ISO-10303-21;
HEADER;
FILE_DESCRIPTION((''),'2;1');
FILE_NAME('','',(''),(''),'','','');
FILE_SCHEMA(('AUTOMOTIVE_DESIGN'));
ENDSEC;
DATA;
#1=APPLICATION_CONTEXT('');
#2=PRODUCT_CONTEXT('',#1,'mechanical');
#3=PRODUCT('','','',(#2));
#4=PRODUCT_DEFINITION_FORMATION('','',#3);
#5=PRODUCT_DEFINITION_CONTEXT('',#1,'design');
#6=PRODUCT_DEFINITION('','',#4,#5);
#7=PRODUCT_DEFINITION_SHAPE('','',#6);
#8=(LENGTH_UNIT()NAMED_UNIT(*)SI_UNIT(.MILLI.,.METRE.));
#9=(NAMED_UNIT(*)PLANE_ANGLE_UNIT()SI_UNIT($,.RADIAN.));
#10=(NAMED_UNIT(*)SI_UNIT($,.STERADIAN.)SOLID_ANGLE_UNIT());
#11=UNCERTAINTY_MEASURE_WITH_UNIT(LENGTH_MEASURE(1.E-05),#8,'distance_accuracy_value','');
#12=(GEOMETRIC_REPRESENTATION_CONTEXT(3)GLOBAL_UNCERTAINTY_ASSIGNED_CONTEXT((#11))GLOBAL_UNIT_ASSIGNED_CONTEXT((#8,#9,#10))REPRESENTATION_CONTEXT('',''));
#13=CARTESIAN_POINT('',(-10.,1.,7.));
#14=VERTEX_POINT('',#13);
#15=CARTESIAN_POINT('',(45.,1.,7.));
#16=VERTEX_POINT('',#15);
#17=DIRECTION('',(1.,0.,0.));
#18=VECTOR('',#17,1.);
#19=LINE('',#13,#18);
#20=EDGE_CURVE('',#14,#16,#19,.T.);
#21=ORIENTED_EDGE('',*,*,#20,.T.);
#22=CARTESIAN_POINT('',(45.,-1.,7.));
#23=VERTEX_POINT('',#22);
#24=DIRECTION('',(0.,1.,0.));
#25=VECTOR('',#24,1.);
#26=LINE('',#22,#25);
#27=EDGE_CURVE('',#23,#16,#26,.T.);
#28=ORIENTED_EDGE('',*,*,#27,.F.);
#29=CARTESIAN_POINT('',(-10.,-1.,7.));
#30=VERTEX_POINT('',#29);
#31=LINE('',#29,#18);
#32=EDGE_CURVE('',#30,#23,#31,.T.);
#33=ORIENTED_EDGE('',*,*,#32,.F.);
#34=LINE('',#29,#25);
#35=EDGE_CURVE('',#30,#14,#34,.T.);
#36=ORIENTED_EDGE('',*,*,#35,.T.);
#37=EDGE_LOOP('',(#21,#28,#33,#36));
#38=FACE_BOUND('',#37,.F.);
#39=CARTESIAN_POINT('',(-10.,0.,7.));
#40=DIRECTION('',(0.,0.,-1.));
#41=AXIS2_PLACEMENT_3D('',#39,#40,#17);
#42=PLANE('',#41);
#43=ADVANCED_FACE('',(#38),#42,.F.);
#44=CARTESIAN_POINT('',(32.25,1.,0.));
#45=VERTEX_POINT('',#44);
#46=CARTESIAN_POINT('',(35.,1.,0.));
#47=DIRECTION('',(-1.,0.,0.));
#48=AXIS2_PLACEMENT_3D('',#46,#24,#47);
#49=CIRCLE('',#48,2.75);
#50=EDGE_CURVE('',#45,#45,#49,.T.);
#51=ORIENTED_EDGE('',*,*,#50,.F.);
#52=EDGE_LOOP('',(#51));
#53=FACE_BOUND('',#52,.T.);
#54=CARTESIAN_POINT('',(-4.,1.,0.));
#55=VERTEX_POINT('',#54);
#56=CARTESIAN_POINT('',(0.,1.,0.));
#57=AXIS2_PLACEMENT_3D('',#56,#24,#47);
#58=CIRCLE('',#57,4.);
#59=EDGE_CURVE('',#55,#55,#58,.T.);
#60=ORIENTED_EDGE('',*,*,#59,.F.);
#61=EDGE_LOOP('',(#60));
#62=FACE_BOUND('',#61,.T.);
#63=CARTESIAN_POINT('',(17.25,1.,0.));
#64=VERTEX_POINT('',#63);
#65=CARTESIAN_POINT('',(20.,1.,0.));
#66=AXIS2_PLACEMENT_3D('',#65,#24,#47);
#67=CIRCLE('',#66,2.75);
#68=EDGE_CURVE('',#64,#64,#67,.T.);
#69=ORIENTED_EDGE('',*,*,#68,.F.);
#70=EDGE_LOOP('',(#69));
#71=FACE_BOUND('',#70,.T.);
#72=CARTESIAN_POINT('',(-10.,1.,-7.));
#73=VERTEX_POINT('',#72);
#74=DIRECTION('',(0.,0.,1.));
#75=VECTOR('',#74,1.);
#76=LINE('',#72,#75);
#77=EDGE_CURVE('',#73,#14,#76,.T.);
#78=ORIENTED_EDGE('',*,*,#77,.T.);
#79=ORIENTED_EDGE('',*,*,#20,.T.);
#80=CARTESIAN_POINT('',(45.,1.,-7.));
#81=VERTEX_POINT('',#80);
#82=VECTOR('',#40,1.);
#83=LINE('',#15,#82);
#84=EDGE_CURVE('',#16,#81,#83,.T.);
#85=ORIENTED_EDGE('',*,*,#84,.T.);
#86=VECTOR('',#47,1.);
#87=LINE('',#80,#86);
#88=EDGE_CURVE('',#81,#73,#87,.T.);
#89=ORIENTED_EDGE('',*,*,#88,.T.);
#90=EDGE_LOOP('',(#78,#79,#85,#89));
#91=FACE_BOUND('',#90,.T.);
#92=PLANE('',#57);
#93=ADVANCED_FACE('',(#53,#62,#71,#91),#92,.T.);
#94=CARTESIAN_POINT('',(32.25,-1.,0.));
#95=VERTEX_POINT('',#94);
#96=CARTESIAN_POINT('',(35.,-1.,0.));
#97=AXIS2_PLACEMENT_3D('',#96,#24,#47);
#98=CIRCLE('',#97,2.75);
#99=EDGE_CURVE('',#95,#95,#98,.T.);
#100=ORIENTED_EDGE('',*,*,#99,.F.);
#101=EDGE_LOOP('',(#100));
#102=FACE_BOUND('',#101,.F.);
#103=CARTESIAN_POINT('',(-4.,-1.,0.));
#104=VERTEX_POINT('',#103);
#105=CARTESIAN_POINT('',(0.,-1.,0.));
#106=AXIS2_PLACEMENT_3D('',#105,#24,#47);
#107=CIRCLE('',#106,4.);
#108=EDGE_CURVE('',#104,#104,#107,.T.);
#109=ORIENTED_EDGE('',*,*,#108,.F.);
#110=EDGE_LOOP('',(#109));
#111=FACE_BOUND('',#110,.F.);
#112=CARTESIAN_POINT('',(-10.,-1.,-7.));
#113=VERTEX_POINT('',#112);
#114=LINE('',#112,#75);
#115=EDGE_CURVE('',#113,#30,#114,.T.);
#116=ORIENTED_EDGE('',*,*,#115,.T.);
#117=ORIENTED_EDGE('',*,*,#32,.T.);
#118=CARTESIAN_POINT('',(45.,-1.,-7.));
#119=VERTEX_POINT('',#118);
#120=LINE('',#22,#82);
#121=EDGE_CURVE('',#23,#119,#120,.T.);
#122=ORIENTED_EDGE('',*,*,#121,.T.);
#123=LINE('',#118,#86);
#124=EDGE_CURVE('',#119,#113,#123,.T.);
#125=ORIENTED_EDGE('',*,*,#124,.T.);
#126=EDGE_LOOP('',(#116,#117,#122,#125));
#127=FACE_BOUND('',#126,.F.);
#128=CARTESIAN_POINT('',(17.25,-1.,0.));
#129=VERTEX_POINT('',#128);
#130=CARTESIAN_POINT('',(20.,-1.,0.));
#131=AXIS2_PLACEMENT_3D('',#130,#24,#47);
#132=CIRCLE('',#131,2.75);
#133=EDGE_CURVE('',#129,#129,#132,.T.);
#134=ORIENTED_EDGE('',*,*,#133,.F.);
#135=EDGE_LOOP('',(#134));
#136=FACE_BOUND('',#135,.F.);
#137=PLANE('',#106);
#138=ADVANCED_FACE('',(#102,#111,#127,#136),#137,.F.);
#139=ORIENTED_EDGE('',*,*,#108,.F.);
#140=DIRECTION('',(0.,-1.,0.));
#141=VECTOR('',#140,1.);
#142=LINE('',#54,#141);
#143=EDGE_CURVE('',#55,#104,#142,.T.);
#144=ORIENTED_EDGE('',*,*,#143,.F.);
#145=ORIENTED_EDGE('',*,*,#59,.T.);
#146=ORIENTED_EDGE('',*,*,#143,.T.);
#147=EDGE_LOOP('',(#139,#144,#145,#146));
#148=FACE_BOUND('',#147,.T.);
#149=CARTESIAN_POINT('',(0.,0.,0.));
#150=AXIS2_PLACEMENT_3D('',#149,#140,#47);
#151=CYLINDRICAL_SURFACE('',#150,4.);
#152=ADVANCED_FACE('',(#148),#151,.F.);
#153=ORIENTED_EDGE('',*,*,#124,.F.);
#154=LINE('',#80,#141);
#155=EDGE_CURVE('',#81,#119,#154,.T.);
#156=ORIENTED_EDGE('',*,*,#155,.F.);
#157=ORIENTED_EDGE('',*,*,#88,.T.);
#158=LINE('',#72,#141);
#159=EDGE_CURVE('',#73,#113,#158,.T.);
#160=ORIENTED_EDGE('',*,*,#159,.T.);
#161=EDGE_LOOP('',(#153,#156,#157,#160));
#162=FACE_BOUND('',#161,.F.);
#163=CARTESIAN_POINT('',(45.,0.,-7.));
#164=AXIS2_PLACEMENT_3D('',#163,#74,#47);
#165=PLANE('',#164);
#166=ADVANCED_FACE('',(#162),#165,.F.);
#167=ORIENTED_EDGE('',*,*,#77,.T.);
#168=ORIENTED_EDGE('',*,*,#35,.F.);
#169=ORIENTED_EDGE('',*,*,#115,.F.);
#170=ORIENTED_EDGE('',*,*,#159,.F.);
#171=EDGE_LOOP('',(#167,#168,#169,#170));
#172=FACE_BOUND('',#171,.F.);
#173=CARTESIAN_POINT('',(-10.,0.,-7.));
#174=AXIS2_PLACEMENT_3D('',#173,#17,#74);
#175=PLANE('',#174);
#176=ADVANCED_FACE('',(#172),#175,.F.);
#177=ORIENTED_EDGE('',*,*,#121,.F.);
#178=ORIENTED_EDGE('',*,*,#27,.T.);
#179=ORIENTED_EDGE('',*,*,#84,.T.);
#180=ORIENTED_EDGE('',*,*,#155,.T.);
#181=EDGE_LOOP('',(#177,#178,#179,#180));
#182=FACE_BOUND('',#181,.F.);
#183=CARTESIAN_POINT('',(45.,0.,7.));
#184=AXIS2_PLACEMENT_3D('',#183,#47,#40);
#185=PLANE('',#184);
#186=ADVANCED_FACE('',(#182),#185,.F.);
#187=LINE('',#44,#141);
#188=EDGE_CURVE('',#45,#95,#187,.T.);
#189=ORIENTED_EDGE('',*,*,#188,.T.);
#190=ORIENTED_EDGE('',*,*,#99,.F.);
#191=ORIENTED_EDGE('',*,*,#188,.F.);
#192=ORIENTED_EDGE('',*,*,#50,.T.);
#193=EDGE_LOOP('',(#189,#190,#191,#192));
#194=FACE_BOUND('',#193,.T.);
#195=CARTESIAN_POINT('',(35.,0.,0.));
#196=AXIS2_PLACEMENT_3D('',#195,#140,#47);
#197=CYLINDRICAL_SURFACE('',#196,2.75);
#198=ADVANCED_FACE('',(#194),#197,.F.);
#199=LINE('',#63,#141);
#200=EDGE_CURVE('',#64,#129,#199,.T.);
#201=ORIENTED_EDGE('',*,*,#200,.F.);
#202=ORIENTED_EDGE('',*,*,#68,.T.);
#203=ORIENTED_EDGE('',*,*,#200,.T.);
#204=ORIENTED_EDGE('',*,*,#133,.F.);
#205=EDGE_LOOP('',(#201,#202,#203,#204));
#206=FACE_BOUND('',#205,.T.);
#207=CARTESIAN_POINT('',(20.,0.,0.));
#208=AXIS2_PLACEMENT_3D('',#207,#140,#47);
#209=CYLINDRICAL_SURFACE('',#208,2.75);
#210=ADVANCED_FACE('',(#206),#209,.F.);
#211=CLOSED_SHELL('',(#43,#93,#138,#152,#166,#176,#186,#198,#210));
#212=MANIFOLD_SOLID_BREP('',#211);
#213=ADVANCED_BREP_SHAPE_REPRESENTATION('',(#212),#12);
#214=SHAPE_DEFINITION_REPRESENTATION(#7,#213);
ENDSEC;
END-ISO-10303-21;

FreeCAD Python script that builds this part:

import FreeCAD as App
import Part
import Sketcher

doc = App.newDocument("Part")
body = doc.addObject("PartDesign::Body", "Body")

sketch1 = body.newObject("Sketcher::SketchObject", "Sketch")
sketch1.AttachmentSupport = (doc.getObject("XZ_Plane"), [""])
sketch1.MapMode = "FlatFace"
sketch1.addGeometry(Part.LineSegment(App.Vector(-10, -7, 0), App.Vector(-10, 7, 0)), False)
sketch1.addGeometry(Part.LineSegment(App.Vector(-10, 7, 0), App.Vector(45, 7, 0)), False)
sketch1.addGeometry(Part.LineSegment(App.Vector(45, 7, 0), App.Vector(45, -7, 0)), False)
sketch1.addGeometry(Part.LineSegment(App.Vector(45, -7, 0), App.Vector(-10, -7, 0)), False)
sketch1.addGeometry(Part.Circle(App.Vector(35, 0, 0), App.Vector(0, 0, 1), 2.8), False)
sketch1.addGeometry(Part.Circle(App.Vector(20, 0, 0), App.Vector(0, 0, 1), 2.8), False)
sketch1.addGeometry(Part.Circle(App.Vector(0, 0, 0), App.Vector(0, 0, 1), 4), False)
sketch1.addConstraint(Sketcher.Constraint("Coincident", 0, 2, 1, 1))
sketch1.addConstraint(Sketcher.Constraint("Coincident", 1, 2, 2, 1))
sketch1.addConstraint(Sketcher.Constraint("Coincident", 2, 2, 3, 1))
sketch1.addConstraint(Sketcher.Constraint("Coincident", 3, 2, 0, 1))
sketch1.addConstraint(Sketcher.Constraint("Vertical", 0))
sketch1.addConstraint(Sketcher.Constraint("Horizontal", 1))
sketch1.addConstraint(Sketcher.Constraint("Vertical", 2))
sketch1.addConstraint(Sketcher.Constraint("Horizontal", 3))
sketch1.addConstraint(Sketcher.Constraint("Coincident", 6, 3, -1, 1))
sketch1.addConstraint(Sketcher.Constraint("Equal", 4, 5))
sketch1.addConstraint(Sketcher.Constraint("PointOnObject", 4, 3, -1))
sketch1.addConstraint(Sketcher.Constraint("PointOnObject", 5, 3, -1))
sketch1.addConstraint(Sketcher.Constraint("Diameter", 6, 8.0))
sketch1.addConstraint(Sketcher.Constraint("Diameter", 4, 5.5))
sketch1.addConstraint(Sketcher.Constraint("DistanceX", 1, 1, 1, 2, 55.0))
sketch1.addConstraint(Sketcher.Constraint("DistanceY", 0, 1, 0, 2, 14.0))
sketch1.addConstraint(Sketcher.Constraint("DistanceX", -1, 1, 4, 3, 35.0))
sketch1.addConstraint(Sketcher.Constraint("DistanceX", -1, 1, 5, 3, 20.0))
sketch1.addConstraint(Sketcher.Constraint("DistanceX", 0, 2, -1, 1, 10.0))
sketch1.addConstraint(Sketcher.Constraint("DistanceY", -1, 1, 0, 2, 7.0))
pad1 = body.newObject("PartDesign::Pad", "Pad")
pad1.Profile = sketch1
pad1.Length = 2
pad1.Midplane = True

doc.recompute()
